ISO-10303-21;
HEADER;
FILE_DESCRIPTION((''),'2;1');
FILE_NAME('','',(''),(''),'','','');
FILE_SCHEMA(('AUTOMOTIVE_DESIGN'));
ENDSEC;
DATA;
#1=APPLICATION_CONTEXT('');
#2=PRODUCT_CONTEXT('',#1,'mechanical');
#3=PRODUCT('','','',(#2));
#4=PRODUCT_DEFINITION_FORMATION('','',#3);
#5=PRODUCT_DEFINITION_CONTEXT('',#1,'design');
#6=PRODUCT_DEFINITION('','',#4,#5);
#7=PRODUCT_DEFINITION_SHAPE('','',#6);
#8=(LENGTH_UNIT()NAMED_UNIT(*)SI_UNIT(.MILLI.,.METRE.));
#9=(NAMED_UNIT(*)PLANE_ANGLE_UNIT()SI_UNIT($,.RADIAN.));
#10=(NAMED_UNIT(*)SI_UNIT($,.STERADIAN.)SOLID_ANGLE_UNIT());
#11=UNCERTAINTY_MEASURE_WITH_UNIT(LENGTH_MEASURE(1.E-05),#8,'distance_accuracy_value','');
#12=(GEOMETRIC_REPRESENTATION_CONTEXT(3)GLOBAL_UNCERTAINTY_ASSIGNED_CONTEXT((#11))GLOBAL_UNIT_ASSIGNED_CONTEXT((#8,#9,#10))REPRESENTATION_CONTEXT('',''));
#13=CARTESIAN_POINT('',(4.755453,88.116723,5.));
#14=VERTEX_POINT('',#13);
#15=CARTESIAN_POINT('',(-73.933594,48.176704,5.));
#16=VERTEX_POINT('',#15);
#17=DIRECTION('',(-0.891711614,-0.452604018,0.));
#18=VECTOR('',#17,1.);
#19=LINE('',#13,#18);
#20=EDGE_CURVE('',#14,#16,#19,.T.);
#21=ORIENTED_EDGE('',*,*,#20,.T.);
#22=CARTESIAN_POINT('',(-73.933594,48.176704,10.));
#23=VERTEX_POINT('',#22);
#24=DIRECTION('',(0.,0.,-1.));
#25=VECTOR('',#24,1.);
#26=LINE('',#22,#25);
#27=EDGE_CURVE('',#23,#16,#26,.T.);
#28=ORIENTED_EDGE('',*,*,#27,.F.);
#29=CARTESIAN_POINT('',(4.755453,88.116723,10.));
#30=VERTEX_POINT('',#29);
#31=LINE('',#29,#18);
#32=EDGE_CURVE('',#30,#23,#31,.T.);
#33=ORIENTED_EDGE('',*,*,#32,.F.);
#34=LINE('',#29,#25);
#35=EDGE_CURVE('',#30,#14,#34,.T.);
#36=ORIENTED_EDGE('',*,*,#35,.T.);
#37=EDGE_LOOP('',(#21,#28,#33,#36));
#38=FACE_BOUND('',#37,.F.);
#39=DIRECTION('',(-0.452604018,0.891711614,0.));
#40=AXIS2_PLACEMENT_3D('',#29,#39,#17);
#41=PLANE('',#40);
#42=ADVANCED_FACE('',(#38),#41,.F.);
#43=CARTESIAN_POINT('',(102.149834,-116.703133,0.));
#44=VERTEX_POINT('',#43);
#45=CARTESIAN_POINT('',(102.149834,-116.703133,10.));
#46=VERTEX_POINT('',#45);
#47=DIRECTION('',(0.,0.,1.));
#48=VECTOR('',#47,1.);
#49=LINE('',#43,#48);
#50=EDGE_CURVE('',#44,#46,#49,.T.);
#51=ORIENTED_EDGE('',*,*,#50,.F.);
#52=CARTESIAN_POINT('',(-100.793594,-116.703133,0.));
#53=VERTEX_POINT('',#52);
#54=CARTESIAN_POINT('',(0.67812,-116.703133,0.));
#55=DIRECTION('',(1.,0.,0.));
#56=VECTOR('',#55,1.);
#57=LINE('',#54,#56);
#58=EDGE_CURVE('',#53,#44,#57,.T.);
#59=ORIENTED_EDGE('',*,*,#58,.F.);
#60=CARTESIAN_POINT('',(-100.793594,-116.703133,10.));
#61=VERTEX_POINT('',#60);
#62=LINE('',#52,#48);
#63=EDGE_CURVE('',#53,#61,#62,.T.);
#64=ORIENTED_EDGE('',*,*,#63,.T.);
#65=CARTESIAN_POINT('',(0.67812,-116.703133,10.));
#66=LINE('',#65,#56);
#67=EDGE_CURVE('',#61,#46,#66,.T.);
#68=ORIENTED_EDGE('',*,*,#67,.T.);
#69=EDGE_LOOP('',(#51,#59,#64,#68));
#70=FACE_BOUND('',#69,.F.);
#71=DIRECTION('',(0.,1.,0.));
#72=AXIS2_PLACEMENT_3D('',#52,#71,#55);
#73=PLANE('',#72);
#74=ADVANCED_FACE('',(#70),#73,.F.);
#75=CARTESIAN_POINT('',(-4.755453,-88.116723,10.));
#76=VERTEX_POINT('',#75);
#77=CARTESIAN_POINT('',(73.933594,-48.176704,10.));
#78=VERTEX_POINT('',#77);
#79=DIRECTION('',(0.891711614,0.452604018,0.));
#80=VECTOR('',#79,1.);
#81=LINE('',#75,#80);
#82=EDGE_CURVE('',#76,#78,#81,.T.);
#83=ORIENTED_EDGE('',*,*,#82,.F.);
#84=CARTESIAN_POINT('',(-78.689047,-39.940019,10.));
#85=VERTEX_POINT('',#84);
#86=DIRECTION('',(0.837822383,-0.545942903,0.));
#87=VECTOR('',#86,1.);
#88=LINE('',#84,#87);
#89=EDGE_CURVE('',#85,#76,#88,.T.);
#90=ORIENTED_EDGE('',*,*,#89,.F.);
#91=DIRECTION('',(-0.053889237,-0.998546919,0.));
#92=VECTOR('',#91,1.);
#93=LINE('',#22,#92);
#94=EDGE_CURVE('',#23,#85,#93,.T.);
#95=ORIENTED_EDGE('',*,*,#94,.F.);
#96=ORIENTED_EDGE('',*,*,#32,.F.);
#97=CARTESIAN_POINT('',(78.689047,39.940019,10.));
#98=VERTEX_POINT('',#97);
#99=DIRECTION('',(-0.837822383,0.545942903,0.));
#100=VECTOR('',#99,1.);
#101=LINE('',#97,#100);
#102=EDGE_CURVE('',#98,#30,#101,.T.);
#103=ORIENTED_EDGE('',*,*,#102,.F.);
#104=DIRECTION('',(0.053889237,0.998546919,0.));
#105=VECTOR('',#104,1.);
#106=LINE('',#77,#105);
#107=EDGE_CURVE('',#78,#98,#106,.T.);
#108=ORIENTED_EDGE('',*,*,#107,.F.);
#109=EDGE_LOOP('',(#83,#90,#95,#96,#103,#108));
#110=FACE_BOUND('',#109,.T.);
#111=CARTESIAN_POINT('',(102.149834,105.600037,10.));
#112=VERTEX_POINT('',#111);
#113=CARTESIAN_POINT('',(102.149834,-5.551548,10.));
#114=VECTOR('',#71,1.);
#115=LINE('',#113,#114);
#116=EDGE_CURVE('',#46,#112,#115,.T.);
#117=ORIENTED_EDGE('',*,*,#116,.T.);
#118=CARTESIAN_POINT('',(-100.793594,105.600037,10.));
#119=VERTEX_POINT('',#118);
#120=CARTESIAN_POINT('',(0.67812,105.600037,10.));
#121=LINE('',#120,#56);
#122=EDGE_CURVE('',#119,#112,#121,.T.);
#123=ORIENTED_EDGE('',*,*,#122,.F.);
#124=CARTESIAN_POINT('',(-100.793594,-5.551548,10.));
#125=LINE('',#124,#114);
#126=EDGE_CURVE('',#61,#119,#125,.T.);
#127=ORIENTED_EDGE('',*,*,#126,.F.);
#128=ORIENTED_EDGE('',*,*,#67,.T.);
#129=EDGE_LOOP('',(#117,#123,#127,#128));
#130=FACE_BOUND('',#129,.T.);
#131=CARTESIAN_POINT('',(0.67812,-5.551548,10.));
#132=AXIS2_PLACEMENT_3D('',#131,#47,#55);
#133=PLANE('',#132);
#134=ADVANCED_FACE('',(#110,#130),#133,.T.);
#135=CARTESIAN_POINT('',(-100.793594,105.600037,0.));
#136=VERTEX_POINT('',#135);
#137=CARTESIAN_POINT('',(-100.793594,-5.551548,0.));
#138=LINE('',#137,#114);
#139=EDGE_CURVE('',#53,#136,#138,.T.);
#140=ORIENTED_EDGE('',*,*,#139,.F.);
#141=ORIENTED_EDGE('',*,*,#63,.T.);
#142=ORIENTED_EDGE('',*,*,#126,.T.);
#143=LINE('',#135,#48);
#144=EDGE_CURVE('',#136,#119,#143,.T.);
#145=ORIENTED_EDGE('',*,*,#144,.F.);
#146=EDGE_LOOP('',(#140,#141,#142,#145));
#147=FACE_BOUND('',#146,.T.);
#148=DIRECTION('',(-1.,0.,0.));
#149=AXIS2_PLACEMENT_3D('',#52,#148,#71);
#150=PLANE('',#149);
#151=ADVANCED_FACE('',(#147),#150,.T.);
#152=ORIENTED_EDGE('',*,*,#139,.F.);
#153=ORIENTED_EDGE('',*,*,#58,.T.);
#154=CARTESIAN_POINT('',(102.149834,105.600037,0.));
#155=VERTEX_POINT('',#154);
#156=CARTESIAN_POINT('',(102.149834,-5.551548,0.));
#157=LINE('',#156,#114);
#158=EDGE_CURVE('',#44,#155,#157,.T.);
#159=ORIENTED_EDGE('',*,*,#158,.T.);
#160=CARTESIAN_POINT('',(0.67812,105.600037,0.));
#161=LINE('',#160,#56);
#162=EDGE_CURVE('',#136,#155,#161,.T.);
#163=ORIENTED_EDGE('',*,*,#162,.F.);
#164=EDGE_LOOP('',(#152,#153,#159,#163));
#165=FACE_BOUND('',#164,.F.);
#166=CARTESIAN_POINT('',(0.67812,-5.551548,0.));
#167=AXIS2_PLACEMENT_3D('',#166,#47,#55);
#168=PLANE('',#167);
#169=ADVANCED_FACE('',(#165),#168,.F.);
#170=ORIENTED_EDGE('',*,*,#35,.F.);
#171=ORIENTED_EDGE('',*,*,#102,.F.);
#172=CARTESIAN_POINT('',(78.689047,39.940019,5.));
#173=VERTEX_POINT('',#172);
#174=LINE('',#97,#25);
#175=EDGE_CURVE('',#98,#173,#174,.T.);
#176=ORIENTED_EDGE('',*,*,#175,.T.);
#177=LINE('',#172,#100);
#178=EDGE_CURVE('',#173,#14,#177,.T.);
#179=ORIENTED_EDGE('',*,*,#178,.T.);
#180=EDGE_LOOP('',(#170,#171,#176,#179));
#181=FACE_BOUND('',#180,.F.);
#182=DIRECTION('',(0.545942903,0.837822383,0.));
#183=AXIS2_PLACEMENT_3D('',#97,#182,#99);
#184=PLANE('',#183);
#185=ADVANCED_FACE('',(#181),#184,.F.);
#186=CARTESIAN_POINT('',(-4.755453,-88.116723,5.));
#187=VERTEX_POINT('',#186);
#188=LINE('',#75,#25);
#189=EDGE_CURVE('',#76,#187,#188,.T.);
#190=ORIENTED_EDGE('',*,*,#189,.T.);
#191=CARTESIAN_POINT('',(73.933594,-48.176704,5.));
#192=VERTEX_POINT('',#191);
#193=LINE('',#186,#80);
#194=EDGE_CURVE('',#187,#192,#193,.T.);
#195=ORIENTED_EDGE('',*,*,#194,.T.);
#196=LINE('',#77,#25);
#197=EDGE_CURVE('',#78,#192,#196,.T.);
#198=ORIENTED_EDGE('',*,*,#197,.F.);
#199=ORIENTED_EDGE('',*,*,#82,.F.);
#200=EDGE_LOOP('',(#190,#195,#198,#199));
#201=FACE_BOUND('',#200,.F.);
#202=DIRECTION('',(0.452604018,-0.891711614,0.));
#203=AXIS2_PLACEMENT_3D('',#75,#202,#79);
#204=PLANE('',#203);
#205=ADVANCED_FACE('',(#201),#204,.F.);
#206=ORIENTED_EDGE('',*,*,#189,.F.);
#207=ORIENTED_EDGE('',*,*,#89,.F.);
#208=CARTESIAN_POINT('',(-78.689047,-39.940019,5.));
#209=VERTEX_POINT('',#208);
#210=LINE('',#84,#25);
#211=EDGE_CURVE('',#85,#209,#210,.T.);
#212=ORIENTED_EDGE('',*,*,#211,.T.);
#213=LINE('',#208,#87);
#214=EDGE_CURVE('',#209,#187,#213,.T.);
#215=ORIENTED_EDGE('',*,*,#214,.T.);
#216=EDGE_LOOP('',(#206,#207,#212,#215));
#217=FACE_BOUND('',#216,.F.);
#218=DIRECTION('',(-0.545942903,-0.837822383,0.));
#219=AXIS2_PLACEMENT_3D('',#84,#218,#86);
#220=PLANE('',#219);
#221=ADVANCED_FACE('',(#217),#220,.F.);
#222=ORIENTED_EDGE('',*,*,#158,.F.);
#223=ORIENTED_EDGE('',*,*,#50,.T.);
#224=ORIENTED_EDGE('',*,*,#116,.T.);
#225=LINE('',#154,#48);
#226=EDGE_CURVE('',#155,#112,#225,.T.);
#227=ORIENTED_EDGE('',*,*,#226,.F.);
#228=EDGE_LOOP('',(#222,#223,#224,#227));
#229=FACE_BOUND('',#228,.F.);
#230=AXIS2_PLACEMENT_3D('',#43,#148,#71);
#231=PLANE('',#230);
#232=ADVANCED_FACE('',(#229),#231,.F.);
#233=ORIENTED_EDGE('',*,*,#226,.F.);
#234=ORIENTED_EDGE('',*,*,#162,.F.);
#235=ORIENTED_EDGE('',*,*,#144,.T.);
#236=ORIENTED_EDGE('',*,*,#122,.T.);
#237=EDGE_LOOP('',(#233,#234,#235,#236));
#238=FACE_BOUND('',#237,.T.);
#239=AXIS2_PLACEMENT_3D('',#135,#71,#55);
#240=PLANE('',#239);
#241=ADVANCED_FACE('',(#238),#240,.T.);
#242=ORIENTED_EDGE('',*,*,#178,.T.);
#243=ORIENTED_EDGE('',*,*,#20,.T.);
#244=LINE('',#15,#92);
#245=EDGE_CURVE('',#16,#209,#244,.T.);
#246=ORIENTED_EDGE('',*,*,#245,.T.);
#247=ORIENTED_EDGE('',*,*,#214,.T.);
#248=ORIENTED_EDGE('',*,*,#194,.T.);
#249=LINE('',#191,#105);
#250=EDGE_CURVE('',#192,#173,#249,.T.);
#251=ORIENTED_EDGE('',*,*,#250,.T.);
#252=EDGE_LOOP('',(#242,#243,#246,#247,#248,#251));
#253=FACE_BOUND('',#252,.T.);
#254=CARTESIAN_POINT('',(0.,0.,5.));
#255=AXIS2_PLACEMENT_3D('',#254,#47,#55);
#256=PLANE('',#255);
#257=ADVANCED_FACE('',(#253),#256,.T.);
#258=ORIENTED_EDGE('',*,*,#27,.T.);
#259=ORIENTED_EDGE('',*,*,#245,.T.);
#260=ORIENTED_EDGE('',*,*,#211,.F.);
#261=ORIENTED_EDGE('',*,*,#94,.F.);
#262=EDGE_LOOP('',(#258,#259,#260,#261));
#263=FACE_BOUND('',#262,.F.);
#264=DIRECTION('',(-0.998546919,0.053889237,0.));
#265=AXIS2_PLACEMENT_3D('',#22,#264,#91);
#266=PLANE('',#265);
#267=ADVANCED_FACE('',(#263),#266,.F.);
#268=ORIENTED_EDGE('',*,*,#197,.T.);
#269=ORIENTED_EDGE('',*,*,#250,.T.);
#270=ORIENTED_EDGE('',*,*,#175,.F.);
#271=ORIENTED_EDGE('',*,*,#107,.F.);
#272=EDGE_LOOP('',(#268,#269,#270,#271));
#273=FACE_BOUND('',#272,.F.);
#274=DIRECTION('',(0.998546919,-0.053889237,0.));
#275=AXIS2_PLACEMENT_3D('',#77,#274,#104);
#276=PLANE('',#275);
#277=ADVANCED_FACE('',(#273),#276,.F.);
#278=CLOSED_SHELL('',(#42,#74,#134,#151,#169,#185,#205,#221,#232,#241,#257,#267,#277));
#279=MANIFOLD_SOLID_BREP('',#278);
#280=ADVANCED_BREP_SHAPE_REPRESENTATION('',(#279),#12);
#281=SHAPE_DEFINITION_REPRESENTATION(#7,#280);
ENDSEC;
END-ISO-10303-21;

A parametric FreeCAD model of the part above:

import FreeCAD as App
import Part
import Sketcher

V = App.Vector


def add_polygon(sketch, points):
    """Adds a closed chain of lines whose ends are joined by coincident constraints."""
    first, n = sketch.GeometryCount, len(points)
    for a, b in zip(points, points[1:] + points[:1]):
        sketch.addGeometry(Part.LineSegment(App.Vector(*a, 0), App.Vector(*b, 0)), False)
    for i in range(n):
        sketch.addConstraint(Sketcher.Constraint("Coincident", first + i, 2, first + (i + 1) % n, 1))

doc = App.newDocument("Part")
body = doc.addObject("PartDesign::Body", "Body")

# Sketch on XY plane
sketch1 = doc.addObject("Sketcher::SketchObject", "Sketch")
body.addObject(sketch1)
sketch1.AttachmentSupport = (doc.XY_Plane, [""])
sketch1.MapMode = "FlatFace"
add_polygon(sketch1, [(-100.793594, 105.600037), (-100.793594, -116.703133), (102.149834, -116.703133), (102.149834, 105.600037)])  # lines 0-3
sketch1.addConstraint(Sketcher.Constraint("Vertical", 0))
sketch1.addConstraint(Sketcher.Constraint("Horizontal", 1))
sketch1.addConstraint(Sketcher.Constraint("Vertical", 2))
sketch1.addConstraint(Sketcher.Constraint("Horizontal", 3))
sketch1.addConstraint(Sketcher.Constraint("DistanceY", 0, 2, 0, 1, 222.30317))
sketch1.addConstraint(Sketcher.Constraint("DistanceX", 1, 1, 1, 2, 202.943428))
sketch1.addConstraint(Sketcher.Constraint("DistanceX", 0, 2, -1, 1, 100.793594))
sketch1.addConstraint(Sketcher.Constraint("DistanceY", 0, 2, -1, 1, 116.703133))
pad1 = doc.addObject("PartDesign::Pad", "Pad")
body.addObject(pad1)
pad1.Profile = sketch1
pad1.Length = 10

# Sketch on XY plane
sketch2 = doc.addObject("Sketcher::SketchObject", "Sketch001")
body.addObject(sketch2)
sketch2.AttachmentSupport = (doc.XY_Plane, [""])
sketch2.MapMode = "FlatFace"
sketch2.AttachmentOffset = App.Placement(V(0, 0, 10), App.Rotation())
add_polygon(sketch2, [(73.933594, -48.176704), (78.689047, 39.940019), (4.755453, 88.116723), (-73.933594, 48.176704), (-78.689047, -39.940019), (-4.755453, -88.116723)])  # lines 0-5
sketch2.addConstraint(Sketcher.Constraint("Symmetric", 0, 2, 3, 2, -1, 1))
sketch2.addConstraint(Sketcher.Constraint("Symmetric", 1, 2, 4, 2, -1, 1))
sketch2.addConstraint(Sketcher.Constraint("Symmetric", 2, 2, 5, 2, -1, 1))
sketch2.addConstraint(Sketcher.Constraint("Equal", 0, 1))
sketch2.addConstraint(Sketcher.Constraint("Equal", 1, 2))
sketch2.addConstraint(Sketcher.Constraint("DistanceX", 3, 2, 1, 2, 83.4445))
sketch2.addConstraint(Sketcher.Constraint("Distance", 0, 88.24495))
sketch2.addConstraint(Sketcher.Constraint("DistanceY", -1, 1, 0, 2, 39.940019))
sketch2.addConstraint(Sketcher.Constraint("DistanceY", 2, 2, 1, 2, 39.940019))
pocket1 = doc.addObject("PartDesign::Pocket", "Pocket")
body.addObject(pocket1)
pocket1.Profile = sketch2
pocket1.Length = 5

doc.recompute()
